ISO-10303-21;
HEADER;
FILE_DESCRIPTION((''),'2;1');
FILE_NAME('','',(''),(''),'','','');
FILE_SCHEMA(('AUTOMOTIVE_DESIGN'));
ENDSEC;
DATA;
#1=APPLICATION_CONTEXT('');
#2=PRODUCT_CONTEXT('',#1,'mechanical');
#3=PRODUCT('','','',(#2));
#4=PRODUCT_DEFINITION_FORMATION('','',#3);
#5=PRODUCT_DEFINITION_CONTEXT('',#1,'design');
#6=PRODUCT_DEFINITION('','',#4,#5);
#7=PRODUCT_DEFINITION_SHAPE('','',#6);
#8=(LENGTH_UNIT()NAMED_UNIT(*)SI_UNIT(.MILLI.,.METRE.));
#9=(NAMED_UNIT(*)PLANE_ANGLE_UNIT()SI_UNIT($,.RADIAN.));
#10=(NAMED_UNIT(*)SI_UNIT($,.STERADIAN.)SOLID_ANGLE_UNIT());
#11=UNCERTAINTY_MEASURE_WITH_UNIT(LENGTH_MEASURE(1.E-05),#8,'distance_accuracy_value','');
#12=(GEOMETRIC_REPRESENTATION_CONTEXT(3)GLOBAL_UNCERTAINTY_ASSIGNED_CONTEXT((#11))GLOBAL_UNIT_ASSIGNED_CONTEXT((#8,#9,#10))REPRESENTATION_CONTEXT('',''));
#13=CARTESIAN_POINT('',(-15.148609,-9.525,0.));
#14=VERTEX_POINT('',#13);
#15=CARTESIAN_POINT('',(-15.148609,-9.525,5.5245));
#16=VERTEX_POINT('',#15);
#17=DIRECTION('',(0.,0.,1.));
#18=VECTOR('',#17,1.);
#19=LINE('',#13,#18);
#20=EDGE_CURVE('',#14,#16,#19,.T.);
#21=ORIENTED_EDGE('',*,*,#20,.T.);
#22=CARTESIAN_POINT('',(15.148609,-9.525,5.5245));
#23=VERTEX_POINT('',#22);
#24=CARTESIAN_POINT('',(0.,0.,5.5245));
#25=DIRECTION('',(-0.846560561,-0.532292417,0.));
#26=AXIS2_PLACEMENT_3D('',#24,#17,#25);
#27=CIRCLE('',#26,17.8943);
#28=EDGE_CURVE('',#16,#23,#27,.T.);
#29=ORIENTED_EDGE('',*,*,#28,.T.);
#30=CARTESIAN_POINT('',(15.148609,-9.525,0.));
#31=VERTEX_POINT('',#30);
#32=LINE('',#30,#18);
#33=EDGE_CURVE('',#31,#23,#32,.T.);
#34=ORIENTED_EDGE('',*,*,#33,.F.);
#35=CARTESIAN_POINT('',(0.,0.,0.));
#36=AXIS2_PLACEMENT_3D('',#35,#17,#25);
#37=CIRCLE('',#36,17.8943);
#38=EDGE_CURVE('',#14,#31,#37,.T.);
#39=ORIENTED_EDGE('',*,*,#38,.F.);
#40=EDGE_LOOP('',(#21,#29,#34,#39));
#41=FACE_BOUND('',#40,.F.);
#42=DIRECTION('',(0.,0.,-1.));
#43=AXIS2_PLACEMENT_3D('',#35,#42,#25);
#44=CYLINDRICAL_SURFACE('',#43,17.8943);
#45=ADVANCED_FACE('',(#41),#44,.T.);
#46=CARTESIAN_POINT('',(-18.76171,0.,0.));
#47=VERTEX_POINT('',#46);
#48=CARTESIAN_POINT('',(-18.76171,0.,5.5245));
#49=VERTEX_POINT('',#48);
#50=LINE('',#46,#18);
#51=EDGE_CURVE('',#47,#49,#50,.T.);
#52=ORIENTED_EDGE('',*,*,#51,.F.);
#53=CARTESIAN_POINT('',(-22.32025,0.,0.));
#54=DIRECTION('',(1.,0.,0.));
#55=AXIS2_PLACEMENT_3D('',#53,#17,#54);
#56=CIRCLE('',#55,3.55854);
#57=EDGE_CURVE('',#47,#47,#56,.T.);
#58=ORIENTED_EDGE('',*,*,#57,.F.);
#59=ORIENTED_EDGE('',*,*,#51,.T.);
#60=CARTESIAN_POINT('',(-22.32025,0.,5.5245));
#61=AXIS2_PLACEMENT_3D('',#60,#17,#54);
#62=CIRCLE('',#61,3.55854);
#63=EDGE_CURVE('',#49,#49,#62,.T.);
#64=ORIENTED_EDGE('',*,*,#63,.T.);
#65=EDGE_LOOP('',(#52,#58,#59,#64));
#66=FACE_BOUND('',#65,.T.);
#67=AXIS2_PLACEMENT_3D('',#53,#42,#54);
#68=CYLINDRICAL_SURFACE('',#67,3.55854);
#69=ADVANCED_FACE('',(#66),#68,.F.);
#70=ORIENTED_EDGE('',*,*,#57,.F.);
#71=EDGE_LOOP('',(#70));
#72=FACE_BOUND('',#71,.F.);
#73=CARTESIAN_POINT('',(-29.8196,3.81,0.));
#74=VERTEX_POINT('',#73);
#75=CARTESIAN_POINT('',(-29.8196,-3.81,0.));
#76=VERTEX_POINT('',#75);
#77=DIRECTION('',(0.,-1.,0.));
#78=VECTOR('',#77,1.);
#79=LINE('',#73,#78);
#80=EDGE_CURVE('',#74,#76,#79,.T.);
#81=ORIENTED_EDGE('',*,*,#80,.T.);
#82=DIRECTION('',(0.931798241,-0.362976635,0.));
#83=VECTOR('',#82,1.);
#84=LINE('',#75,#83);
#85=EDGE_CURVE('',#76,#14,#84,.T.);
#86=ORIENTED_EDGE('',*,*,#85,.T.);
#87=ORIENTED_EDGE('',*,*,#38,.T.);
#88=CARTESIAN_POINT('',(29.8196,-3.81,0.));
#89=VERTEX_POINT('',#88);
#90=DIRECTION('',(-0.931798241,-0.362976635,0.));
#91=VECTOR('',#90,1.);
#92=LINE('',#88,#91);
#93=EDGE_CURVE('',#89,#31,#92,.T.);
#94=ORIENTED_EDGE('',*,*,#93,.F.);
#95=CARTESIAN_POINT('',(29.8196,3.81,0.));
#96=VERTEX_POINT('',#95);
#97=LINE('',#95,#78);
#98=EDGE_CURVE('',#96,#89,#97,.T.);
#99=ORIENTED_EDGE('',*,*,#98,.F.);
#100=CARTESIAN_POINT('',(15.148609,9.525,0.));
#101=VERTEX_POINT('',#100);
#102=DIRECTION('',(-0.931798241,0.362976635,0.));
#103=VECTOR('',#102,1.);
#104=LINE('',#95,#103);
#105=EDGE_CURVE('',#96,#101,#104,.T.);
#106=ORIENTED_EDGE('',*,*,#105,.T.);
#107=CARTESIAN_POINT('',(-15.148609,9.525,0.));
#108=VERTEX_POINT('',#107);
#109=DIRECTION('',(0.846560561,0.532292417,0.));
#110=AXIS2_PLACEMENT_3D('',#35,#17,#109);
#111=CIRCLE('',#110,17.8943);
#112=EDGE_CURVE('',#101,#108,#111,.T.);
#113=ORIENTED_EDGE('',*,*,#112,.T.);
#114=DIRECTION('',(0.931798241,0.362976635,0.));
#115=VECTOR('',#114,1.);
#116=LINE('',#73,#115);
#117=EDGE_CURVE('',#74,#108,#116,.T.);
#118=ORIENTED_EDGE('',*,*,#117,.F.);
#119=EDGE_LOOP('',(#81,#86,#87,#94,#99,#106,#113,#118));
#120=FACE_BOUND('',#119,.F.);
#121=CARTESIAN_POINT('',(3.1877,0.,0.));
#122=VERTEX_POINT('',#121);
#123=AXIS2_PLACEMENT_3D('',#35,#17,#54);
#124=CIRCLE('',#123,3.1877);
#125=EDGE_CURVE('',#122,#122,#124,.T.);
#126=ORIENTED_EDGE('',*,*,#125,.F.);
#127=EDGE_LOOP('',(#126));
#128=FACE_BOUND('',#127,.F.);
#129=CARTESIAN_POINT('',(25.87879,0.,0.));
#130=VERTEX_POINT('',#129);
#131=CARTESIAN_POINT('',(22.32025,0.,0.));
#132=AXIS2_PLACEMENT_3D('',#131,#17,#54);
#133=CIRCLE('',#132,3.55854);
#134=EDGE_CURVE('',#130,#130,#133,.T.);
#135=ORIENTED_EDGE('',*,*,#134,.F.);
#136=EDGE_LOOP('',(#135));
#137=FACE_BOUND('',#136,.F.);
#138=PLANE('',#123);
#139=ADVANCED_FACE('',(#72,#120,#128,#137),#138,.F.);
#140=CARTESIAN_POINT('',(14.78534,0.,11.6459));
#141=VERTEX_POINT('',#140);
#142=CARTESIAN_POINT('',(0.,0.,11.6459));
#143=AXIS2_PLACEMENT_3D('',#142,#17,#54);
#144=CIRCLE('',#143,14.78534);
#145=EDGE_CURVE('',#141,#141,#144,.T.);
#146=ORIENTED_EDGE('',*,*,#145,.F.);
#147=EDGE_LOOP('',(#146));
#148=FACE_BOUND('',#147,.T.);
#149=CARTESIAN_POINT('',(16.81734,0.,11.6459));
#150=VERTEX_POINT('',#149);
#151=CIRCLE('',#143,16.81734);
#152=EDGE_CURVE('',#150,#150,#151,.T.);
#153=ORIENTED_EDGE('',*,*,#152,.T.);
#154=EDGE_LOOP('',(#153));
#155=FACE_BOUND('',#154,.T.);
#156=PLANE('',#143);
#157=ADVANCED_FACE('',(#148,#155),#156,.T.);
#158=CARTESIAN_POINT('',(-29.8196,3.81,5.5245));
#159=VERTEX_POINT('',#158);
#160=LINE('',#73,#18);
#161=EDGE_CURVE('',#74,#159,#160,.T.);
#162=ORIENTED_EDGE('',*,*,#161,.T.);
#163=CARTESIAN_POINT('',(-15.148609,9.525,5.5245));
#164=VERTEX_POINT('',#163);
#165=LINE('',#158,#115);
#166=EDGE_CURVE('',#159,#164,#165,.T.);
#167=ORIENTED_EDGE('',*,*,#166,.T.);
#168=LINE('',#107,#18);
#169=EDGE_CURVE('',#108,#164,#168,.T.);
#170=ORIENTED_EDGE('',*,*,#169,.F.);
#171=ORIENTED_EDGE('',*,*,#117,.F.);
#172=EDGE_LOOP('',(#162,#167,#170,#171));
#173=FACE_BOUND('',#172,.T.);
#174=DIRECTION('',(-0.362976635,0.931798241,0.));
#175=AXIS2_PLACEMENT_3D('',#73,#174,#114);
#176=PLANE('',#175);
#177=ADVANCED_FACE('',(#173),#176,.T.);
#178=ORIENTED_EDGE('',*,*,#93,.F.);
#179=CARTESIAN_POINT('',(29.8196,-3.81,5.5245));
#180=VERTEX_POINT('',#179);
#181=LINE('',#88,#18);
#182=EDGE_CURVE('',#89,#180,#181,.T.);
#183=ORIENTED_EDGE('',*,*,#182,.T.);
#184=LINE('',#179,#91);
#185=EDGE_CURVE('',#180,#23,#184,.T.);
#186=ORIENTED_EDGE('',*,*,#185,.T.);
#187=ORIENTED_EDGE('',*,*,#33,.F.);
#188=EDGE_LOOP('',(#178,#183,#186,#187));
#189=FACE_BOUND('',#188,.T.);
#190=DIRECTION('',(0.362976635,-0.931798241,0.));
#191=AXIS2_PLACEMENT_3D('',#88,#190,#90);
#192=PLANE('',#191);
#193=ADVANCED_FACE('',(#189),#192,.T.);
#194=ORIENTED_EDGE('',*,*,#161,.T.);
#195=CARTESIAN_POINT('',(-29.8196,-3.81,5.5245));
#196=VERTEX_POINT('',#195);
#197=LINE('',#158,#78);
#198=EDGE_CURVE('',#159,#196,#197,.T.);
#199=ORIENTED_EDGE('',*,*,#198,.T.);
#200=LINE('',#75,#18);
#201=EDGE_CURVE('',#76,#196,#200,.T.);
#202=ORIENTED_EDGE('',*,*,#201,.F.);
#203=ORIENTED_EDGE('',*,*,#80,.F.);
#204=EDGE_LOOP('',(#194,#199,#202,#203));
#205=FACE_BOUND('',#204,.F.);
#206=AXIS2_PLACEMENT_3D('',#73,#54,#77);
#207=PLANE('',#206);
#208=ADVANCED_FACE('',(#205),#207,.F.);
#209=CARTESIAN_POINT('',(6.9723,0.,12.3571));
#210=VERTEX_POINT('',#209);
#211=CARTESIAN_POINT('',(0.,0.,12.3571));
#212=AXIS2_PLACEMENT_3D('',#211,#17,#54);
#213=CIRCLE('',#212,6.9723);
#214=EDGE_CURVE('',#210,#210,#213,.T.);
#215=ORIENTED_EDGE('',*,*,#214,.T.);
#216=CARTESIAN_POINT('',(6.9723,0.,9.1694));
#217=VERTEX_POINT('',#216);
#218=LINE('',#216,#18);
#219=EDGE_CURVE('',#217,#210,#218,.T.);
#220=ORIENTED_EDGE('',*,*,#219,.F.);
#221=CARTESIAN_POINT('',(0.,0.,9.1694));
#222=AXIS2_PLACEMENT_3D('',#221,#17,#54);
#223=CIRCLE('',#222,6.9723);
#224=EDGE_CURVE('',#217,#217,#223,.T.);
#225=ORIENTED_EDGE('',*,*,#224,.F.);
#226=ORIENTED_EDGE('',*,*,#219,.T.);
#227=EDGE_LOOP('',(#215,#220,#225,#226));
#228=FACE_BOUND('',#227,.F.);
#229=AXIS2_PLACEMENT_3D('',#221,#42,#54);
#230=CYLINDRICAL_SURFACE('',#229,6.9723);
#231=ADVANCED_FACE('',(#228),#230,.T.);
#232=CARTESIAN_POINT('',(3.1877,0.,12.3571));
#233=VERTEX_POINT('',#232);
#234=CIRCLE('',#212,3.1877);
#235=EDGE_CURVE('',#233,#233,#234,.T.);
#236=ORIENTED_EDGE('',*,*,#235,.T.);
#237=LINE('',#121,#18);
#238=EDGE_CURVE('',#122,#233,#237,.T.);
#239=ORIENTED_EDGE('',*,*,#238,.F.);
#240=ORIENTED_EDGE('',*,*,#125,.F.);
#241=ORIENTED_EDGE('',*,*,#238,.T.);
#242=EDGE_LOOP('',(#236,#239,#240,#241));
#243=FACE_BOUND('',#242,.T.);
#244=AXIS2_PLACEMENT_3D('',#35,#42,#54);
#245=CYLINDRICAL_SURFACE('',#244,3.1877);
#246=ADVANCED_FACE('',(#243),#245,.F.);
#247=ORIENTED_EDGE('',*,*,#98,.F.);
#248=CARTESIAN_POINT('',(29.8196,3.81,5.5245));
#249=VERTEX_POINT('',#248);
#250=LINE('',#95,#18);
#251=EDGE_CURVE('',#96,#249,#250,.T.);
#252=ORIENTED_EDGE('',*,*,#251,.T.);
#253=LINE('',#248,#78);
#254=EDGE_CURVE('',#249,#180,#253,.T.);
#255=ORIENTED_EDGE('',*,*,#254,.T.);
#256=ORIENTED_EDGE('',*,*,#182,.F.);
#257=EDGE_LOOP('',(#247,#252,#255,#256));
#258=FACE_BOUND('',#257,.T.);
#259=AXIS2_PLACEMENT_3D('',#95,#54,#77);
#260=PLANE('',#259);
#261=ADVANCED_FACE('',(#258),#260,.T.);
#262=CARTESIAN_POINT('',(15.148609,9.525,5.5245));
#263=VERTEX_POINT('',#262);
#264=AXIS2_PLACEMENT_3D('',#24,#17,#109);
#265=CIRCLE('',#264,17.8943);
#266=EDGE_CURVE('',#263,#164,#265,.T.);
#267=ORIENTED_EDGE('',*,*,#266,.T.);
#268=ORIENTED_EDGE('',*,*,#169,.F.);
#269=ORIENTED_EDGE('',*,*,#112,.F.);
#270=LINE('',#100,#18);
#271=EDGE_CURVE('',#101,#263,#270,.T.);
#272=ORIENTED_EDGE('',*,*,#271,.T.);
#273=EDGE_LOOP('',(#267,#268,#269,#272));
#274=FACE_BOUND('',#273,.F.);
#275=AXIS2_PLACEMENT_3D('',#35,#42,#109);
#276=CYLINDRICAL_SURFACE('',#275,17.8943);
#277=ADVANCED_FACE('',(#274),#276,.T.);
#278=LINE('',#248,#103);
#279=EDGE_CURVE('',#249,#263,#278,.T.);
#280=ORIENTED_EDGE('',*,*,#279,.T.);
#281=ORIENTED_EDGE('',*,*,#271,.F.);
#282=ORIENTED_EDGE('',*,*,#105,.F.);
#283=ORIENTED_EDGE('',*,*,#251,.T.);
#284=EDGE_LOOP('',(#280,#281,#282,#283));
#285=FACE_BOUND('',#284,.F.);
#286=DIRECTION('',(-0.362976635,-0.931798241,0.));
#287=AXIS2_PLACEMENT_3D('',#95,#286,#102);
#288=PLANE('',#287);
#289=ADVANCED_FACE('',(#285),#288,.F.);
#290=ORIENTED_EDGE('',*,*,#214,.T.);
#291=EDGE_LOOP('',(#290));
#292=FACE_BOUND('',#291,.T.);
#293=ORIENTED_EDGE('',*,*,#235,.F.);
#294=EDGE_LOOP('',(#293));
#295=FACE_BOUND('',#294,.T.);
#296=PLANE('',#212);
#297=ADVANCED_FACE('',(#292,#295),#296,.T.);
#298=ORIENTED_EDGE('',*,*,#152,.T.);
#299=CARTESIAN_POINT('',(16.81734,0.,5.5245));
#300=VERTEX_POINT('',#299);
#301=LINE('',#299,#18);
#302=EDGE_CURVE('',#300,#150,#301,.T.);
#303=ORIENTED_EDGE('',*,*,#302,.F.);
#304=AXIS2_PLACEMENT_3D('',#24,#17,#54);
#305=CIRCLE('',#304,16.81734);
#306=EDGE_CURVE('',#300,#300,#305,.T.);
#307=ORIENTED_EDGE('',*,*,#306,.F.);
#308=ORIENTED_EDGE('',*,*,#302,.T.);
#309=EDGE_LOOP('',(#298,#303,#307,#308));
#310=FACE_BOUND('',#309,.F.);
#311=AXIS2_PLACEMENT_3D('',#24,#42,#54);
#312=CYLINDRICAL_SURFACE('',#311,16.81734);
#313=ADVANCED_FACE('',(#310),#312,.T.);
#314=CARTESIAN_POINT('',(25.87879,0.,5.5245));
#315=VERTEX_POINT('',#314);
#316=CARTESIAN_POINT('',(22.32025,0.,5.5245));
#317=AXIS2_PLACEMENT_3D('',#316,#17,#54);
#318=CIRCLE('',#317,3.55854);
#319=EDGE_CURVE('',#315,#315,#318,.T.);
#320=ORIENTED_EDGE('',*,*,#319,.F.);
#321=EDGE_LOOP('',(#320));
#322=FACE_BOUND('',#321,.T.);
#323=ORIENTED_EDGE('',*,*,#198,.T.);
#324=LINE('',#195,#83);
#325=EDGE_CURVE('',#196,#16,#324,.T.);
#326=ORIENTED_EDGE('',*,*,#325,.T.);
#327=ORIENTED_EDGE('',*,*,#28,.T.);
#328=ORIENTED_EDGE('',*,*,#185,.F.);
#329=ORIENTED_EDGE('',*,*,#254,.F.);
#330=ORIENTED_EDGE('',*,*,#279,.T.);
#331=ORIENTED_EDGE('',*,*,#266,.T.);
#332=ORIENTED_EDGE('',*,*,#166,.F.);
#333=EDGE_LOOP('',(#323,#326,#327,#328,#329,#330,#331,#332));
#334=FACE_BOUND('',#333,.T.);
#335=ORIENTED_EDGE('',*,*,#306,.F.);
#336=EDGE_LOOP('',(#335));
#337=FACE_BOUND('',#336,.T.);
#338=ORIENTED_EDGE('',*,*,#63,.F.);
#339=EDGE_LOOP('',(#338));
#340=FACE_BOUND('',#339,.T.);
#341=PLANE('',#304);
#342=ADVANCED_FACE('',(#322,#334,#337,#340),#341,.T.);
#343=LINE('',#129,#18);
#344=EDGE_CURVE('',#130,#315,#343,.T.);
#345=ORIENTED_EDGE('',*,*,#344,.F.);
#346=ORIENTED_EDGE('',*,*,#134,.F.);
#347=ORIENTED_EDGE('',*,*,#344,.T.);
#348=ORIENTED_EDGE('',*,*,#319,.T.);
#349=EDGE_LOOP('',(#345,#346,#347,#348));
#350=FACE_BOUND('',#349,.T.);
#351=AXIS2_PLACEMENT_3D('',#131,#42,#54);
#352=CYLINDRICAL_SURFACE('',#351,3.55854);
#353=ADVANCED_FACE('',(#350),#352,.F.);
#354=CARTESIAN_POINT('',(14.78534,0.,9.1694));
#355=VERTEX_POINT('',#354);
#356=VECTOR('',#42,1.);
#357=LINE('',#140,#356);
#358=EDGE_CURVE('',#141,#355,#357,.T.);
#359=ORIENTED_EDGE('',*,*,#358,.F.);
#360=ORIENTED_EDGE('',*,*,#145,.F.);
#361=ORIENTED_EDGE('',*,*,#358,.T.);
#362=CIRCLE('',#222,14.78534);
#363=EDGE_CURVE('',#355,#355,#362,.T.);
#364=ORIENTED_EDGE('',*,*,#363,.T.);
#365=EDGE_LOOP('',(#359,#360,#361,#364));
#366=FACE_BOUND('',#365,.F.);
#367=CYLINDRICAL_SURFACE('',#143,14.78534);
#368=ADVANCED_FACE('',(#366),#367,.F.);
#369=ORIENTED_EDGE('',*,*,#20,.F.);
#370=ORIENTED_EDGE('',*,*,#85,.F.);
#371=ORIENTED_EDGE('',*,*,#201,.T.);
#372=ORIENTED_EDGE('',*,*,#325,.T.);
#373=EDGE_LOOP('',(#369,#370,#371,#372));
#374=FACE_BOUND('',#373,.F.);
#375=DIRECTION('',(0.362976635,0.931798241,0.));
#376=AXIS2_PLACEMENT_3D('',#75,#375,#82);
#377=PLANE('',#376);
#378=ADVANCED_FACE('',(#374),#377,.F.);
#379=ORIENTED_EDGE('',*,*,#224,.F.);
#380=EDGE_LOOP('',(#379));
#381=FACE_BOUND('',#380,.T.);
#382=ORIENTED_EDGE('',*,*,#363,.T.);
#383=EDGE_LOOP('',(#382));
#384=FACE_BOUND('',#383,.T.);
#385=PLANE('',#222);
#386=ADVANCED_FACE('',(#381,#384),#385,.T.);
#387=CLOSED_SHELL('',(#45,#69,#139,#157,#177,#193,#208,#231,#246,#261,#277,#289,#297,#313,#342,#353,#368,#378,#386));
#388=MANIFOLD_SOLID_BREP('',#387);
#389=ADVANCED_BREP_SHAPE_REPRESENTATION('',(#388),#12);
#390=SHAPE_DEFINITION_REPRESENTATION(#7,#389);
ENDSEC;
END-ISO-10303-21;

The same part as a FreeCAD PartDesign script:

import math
import FreeCAD as App
import Part
import Sketcher
from FreeCAD import Vector
Q = App.Units.Quantity

doc = App.newDocument("Part")
body = doc.addObject("PartDesign::Body", "Body")

sketch1 = body.newObject("Sketcher::SketchObject", "Sketch")
sketch1.AttachmentSupport = (doc.getObject("XY_Plane"), [""])
sketch1.MapMode = "FlatFace"
sketch1.addGeometry([
    Part.ArcOfCircle(Part.Circle(Vector(0, 0, 0), Vector(0, 0, 1), 17.9), math.radians(-148), math.radians(-32)),
    Part.LineSegment(Vector(15.1, -9.5, 0), Vector(29.8, -3.8, 0)),
    Part.LineSegment(Vector(29.8, -3.8, 0), Vector(29.8, 3.8, 0)),
    Part.LineSegment(Vector(29.8, 3.8, 0), Vector(15.1, 9.5, 0)),
    Part.ArcOfCircle(Part.Circle(Vector(0, 0, 0), Vector(0, 0, 1), 17.9), math.radians(32), math.radians(148)),
    Part.LineSegment(Vector(-15.1, 9.5, 0), Vector(-29.8, 3.8, 0)),
    Part.LineSegment(Vector(-29.8, 3.8, 0), Vector(-29.8, -3.8, 0)),
    Part.LineSegment(Vector(-29.8, -3.8, 0), Vector(-15.1, -9.5, 0)),
    Part.Circle(Vector(-22.3, 0, 0), Vector(0, 0, 1), 3.6),
    Part.Circle(Vector(0, 0, 0), Vector(0, 0, 1), 3.2),
    Part.Circle(Vector(22.3, 0, 0), Vector(0, 0, 1), 3.6),
], False)
sketch1.addConstraint([
    Sketcher.Constraint("Coincident", 0, 2, 1, 1),
    Sketcher.Constraint("Coincident", 1, 2, 2, 1),
    Sketcher.Constraint("Coincident", 2, 2, 3, 1),
    Sketcher.Constraint("Coincident", 3, 2, 4, 1),
    Sketcher.Constraint("Coincident", 4, 2, 5, 1),
    Sketcher.Constraint("Coincident", 5, 2, 6, 1),
    Sketcher.Constraint("Coincident", 6, 2, 7, 1),
    Sketcher.Constraint("Coincident", 7, 2, 0, 1),
    Sketcher.Constraint("Vertical", 2),
    Sketcher.Constraint("Vertical", 6),
    Sketcher.Constraint("Coincident", 0, 3, -1, 1),
    Sketcher.Constraint("Coincident", 4, 3, -1, 1),
    Sketcher.Constraint("Coincident", 9, 3, -1, 1),
    Sketcher.Constraint("Equal", 0, 4),
    Sketcher.Constraint("Equal", 8, 10),
    Sketcher.Constraint("Symmetric", 8, 3, 10, 3, -1, 1),
    Sketcher.Constraint("Symmetric", 1, 2, 5, 2, -1, 1),
    Sketcher.Constraint("PointOnObject", 8, 3, -1),
    Sketcher.Constraint("Parallel", 1, 5),
    Sketcher.Constraint("Parallel", 3, 7),
    Sketcher.Constraint("Horizontal", 3, 2, 4, 2),
    Sketcher.Constraint("Horizontal", 2, 2, 5, 2),
    Sketcher.Constraint("Horizontal", 1, 2, 6, 2),
    Sketcher.Constraint("Diameter", 9, Q("0.251 in")),
    Sketcher.Constraint("DistanceY", 2, 1, 2, 2, Q("0.3 in")),
    Sketcher.Constraint("Diameter", 8, Q("0.2802 in")),
    Sketcher.Constraint("Radius", 0, Q("0.7045 in")),
    Sketcher.Constraint("DistanceY", 0, 2, -1, 1, Q("0.375 in")),
    Sketcher.Constraint("DistanceX", -1, 1, 1, 2, Q("1.174 in")),
    Sketcher.Constraint("DistanceX", 8, 3, 10, 3, Q("1.7575 in")),
])
pad1 = body.newObject("PartDesign::Pad", "Pad")
pad1.Profile = sketch1
pad1.Length = Q("0.2175 in")

sketch2 = body.newObject("Sketcher::SketchObject", "Sketch001")
sketch2.AttachmentSupport = (doc.getObject("XY_Plane"), [""])
sketch2.MapMode = "FlatFace"
sketch2.AttachmentOffset = App.Placement(Vector(0, 0, 0.2175 * 25.4), App.Rotation())
sketch2.addGeometry(Part.Circle(Vector(0, 0, 0), Vector(0, 0, 1), 17), False)
sketch2.addConstraint([
    Sketcher.Constraint("Coincident", 0, 3, -1, 1),
    Sketcher.Constraint("Diameter", 0, Q("1.3242 in")),
])
pad2 = body.newObject("PartDesign::Pad", "Pad001")
pad2.Profile = sketch2
pad2.Length = Q("0.241 in")

sketch3 = body.newObject("Sketcher::SketchObject", "Sketch002")
sketch3.AttachmentSupport = (doc.getObject("XY_Plane"), [""])
sketch3.MapMode = "FlatFace"
sketch3.AttachmentOffset = App.Placement(Vector(0, 0, 0.4585 * 25.4), App.Rotation())
sketch3.addGeometry(Part.Circle(Vector(0, 0, 0), Vector(0, 0, 1), 15), False)
sketch3.addConstraint([
    Sketcher.Constraint("Coincident", 0, 3, -1, 1),
    Sketcher.Constraint("Diameter", 0, Q("1.1642 in")),
])
pocket1 = body.newObject("PartDesign::Pocket", "Pocket")
pocket1.Profile = sketch3
pocket1.Length = Q("0.0975 in")

sketch4 = body.newObject("Sketcher::SketchObject", "Sketch003")
sketch4.AttachmentSupport = (doc.getObject("XY_Plane"), [""])
sketch4.MapMode = "FlatFace"
sketch4.AttachmentOffset = App.Placement(Vector(0, 0, 0.361 * 25.4), App.Rotation())
sketch4.addGeometry(Part.Circle(Vector(0, 0, 0), Vector(0, 0, 1), 7), False)
sketch4.addConstraint([
    Sketcher.Constraint("Coincident", 0, 3, -1, 1),
    Sketcher.Constraint("Diameter", 0, Q("0.549 in")),
])
pad3 = body.newObject("PartDesign::Pad", "Pad002")
pad3.Profile = sketch4
pad3.Length = Q("0.1255 in")

sketch5 = body.newObject("Sketcher::SketchObject", "Sketch004")
sketch5.AttachmentSupport = (doc.getObject("XY_Plane"), [""])
sketch5.MapMode = "FlatFace"
sketch5.AttachmentOffset = App.Placement(Vector(0, 0, 0.4865 * 25.4), App.Rotation())
sketch5.addGeometry(Part.Circle(Vector(0, 0, 0), Vector(0, 0, 1), 3.2), False)
sketch5.addConstraint([
    Sketcher.Constraint("Coincident", 0, 3, -1, 1),
    Sketcher.Constraint("Diameter", 0, Q("0.251 in")),
])
pocket2 = body.newObject("PartDesign::Pocket", "Pocket001")
pocket2.Profile = sketch5
pocket2.Type = "ThroughAll"

doc.recompute()
